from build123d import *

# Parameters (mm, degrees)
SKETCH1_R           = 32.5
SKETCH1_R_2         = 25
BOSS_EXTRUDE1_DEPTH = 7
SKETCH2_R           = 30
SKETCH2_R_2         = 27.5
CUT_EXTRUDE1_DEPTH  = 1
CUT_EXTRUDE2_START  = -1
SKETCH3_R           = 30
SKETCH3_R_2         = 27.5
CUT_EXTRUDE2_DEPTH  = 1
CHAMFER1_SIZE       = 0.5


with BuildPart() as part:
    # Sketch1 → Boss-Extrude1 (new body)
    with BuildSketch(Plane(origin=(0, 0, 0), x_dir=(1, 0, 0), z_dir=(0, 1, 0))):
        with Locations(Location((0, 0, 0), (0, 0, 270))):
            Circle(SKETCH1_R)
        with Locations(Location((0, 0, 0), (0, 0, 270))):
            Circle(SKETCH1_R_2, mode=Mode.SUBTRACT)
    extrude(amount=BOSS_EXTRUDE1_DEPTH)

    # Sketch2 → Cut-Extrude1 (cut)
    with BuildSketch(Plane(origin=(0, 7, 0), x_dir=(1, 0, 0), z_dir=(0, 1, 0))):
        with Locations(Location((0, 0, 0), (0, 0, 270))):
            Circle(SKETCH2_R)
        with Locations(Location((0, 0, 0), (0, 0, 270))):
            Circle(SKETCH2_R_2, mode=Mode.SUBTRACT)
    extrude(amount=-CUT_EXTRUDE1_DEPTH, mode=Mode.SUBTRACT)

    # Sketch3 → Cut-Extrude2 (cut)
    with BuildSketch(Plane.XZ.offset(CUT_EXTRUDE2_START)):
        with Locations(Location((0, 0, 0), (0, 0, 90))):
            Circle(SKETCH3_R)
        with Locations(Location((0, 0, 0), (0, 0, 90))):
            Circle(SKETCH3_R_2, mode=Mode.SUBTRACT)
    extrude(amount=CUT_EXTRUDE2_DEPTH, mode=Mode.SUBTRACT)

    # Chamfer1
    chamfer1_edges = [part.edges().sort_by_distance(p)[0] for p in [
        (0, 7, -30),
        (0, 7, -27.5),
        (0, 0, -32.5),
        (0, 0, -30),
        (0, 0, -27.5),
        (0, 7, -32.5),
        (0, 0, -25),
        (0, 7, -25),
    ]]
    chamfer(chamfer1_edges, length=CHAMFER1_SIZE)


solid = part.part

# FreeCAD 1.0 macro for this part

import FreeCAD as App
import Part
import Sketcher
from FreeCAD import Vector
Q = App.Units.Quantity


def edges_at(feature, points):
    """Names of the edges that pass closest to the given points."""
    edges = feature.Shape.Edges
    near = lambda p: min(range(len(edges)), key=lambda i: edges[i].distToShape(Part.Vertex(*p))[0])
    return sorted({f"Edge{near(p) + 1}" for p in points})

doc = App.newDocument("Part")
body = doc.addObject("PartDesign::Body", "Body")

# Sketch on XZ plane
sketch1 = doc.addObject("Sketcher::SketchObject", "Sketch")
body.addObject(sketch1)
sketch1.AttachmentSupport = (doc.XZ_Plane, [""])
sketch1.MapMode = "FlatFace"
sketch1.addGeometry([
    Part.Circle(Vector(0, 0, 0), Vector(0, 0, 1), 32),
    Part.Circle(Vector(0, 0, 0), Vector(0, 0, 1), 25),
], False)
sketch1.addConstraint([
    Sketcher.Constraint("Coincident", 0, 3, -1, 1),
    Sketcher.Constraint("Coincident", 1, 3, -1, 1),
    Sketcher.Constraint("Diameter", 0, Q("65 mm")),
    Sketcher.Constraint("Diameter", 1, Q("50 mm")),
])
pad1 = doc.addObject("PartDesign::Pad", "Pad")
body.addObject(pad1)
pad1.Profile = sketch1
pad1.Length = 7
pad1.Reversed = True

# Sketch on XZ plane
sketch2 = doc.addObject("Sketcher::SketchObject", "Sketch001")
body.addObject(sketch2)
sketch2.AttachmentSupport = (doc.XZ_Plane, [""])
sketch2.MapMode = "FlatFace"
sketch2.AttachmentOffset = App.Placement(Vector(0, 0, -7), App.Rotation())
sketch2.addGeometry([
    Part.Circle(Vector(0, 0, 0), Vector(0, 0, 1), 30),
    Part.Circle(Vector(0, 0, 0), Vector(0, 0, 1), 28),
], False)
sketch2.addConstraint([
    Sketcher.Constraint("Coincident", 0, 3, -1, 1),
    Sketcher.Constraint("Coincident", 1, 3, -1, 1),
    Sketcher.Constraint("Diameter", 0, Q("60 mm")),
    Sketcher.Constraint("Diameter", 1, Q("55 mm")),
])
pocket1 = doc.addObject("PartDesign::Pocket", "Pocket")
body.addObject(pocket1)
pocket1.Profile = sketch2
pocket1.Length = 1
pocket1.Reversed = True

# Sketch on XZ plane
sketch3 = doc.addObject("Sketcher::SketchObject", "Sketch002")
body.addObject(sketch3)
sketch3.AttachmentSupport = (doc.XZ_Plane, [""])
sketch3.MapMode = "FlatFace"
sketch3.AttachmentOffset = App.Placement(Vector(0, 0, -1), App.Rotation())
sketch3.addGeometry([
    Part.Circle(Vector(0, 0, 0), Vector(0, 0, 1), 30),
    Part.Circle(Vector(0, 0, 0), Vector(0, 0, 1), 28),
], False)
sketch3.addConstraint([
    Sketcher.Constraint("Coincident", 0, 3, -1, 1),
    Sketcher.Constraint("Coincident", 1, 3, -1, 1),
    Sketcher.Constraint("Diameter", 0, Q("60 mm")),
    Sketcher.Constraint("Diameter", 1, Q("55 mm")),
])
pocket2 = doc.addObject("PartDesign::Pocket", "Pocket001")
body.addObject(pocket2)
pocket2.Profile = sketch3
pocket2.Length = 1
pocket2.Reversed = True
doc.recompute()

chamfer = doc.addObject("PartDesign::Chamfer", "Chamfer")
body.addObject(chamfer)
chamfer.Base = (pocket2, edges_at(pocket2, [
    (0, 7, -30),
    (0, 7, -27.5),
    (0, 0, -32.5),
    (0, 0, -30),
    (0, 0, -27.5),
    (0, 7, -32.5),
    (0, 0, -25),
    (0, 7, -25),
]))
chamfer.Size = 0.5

doc.recompute()
